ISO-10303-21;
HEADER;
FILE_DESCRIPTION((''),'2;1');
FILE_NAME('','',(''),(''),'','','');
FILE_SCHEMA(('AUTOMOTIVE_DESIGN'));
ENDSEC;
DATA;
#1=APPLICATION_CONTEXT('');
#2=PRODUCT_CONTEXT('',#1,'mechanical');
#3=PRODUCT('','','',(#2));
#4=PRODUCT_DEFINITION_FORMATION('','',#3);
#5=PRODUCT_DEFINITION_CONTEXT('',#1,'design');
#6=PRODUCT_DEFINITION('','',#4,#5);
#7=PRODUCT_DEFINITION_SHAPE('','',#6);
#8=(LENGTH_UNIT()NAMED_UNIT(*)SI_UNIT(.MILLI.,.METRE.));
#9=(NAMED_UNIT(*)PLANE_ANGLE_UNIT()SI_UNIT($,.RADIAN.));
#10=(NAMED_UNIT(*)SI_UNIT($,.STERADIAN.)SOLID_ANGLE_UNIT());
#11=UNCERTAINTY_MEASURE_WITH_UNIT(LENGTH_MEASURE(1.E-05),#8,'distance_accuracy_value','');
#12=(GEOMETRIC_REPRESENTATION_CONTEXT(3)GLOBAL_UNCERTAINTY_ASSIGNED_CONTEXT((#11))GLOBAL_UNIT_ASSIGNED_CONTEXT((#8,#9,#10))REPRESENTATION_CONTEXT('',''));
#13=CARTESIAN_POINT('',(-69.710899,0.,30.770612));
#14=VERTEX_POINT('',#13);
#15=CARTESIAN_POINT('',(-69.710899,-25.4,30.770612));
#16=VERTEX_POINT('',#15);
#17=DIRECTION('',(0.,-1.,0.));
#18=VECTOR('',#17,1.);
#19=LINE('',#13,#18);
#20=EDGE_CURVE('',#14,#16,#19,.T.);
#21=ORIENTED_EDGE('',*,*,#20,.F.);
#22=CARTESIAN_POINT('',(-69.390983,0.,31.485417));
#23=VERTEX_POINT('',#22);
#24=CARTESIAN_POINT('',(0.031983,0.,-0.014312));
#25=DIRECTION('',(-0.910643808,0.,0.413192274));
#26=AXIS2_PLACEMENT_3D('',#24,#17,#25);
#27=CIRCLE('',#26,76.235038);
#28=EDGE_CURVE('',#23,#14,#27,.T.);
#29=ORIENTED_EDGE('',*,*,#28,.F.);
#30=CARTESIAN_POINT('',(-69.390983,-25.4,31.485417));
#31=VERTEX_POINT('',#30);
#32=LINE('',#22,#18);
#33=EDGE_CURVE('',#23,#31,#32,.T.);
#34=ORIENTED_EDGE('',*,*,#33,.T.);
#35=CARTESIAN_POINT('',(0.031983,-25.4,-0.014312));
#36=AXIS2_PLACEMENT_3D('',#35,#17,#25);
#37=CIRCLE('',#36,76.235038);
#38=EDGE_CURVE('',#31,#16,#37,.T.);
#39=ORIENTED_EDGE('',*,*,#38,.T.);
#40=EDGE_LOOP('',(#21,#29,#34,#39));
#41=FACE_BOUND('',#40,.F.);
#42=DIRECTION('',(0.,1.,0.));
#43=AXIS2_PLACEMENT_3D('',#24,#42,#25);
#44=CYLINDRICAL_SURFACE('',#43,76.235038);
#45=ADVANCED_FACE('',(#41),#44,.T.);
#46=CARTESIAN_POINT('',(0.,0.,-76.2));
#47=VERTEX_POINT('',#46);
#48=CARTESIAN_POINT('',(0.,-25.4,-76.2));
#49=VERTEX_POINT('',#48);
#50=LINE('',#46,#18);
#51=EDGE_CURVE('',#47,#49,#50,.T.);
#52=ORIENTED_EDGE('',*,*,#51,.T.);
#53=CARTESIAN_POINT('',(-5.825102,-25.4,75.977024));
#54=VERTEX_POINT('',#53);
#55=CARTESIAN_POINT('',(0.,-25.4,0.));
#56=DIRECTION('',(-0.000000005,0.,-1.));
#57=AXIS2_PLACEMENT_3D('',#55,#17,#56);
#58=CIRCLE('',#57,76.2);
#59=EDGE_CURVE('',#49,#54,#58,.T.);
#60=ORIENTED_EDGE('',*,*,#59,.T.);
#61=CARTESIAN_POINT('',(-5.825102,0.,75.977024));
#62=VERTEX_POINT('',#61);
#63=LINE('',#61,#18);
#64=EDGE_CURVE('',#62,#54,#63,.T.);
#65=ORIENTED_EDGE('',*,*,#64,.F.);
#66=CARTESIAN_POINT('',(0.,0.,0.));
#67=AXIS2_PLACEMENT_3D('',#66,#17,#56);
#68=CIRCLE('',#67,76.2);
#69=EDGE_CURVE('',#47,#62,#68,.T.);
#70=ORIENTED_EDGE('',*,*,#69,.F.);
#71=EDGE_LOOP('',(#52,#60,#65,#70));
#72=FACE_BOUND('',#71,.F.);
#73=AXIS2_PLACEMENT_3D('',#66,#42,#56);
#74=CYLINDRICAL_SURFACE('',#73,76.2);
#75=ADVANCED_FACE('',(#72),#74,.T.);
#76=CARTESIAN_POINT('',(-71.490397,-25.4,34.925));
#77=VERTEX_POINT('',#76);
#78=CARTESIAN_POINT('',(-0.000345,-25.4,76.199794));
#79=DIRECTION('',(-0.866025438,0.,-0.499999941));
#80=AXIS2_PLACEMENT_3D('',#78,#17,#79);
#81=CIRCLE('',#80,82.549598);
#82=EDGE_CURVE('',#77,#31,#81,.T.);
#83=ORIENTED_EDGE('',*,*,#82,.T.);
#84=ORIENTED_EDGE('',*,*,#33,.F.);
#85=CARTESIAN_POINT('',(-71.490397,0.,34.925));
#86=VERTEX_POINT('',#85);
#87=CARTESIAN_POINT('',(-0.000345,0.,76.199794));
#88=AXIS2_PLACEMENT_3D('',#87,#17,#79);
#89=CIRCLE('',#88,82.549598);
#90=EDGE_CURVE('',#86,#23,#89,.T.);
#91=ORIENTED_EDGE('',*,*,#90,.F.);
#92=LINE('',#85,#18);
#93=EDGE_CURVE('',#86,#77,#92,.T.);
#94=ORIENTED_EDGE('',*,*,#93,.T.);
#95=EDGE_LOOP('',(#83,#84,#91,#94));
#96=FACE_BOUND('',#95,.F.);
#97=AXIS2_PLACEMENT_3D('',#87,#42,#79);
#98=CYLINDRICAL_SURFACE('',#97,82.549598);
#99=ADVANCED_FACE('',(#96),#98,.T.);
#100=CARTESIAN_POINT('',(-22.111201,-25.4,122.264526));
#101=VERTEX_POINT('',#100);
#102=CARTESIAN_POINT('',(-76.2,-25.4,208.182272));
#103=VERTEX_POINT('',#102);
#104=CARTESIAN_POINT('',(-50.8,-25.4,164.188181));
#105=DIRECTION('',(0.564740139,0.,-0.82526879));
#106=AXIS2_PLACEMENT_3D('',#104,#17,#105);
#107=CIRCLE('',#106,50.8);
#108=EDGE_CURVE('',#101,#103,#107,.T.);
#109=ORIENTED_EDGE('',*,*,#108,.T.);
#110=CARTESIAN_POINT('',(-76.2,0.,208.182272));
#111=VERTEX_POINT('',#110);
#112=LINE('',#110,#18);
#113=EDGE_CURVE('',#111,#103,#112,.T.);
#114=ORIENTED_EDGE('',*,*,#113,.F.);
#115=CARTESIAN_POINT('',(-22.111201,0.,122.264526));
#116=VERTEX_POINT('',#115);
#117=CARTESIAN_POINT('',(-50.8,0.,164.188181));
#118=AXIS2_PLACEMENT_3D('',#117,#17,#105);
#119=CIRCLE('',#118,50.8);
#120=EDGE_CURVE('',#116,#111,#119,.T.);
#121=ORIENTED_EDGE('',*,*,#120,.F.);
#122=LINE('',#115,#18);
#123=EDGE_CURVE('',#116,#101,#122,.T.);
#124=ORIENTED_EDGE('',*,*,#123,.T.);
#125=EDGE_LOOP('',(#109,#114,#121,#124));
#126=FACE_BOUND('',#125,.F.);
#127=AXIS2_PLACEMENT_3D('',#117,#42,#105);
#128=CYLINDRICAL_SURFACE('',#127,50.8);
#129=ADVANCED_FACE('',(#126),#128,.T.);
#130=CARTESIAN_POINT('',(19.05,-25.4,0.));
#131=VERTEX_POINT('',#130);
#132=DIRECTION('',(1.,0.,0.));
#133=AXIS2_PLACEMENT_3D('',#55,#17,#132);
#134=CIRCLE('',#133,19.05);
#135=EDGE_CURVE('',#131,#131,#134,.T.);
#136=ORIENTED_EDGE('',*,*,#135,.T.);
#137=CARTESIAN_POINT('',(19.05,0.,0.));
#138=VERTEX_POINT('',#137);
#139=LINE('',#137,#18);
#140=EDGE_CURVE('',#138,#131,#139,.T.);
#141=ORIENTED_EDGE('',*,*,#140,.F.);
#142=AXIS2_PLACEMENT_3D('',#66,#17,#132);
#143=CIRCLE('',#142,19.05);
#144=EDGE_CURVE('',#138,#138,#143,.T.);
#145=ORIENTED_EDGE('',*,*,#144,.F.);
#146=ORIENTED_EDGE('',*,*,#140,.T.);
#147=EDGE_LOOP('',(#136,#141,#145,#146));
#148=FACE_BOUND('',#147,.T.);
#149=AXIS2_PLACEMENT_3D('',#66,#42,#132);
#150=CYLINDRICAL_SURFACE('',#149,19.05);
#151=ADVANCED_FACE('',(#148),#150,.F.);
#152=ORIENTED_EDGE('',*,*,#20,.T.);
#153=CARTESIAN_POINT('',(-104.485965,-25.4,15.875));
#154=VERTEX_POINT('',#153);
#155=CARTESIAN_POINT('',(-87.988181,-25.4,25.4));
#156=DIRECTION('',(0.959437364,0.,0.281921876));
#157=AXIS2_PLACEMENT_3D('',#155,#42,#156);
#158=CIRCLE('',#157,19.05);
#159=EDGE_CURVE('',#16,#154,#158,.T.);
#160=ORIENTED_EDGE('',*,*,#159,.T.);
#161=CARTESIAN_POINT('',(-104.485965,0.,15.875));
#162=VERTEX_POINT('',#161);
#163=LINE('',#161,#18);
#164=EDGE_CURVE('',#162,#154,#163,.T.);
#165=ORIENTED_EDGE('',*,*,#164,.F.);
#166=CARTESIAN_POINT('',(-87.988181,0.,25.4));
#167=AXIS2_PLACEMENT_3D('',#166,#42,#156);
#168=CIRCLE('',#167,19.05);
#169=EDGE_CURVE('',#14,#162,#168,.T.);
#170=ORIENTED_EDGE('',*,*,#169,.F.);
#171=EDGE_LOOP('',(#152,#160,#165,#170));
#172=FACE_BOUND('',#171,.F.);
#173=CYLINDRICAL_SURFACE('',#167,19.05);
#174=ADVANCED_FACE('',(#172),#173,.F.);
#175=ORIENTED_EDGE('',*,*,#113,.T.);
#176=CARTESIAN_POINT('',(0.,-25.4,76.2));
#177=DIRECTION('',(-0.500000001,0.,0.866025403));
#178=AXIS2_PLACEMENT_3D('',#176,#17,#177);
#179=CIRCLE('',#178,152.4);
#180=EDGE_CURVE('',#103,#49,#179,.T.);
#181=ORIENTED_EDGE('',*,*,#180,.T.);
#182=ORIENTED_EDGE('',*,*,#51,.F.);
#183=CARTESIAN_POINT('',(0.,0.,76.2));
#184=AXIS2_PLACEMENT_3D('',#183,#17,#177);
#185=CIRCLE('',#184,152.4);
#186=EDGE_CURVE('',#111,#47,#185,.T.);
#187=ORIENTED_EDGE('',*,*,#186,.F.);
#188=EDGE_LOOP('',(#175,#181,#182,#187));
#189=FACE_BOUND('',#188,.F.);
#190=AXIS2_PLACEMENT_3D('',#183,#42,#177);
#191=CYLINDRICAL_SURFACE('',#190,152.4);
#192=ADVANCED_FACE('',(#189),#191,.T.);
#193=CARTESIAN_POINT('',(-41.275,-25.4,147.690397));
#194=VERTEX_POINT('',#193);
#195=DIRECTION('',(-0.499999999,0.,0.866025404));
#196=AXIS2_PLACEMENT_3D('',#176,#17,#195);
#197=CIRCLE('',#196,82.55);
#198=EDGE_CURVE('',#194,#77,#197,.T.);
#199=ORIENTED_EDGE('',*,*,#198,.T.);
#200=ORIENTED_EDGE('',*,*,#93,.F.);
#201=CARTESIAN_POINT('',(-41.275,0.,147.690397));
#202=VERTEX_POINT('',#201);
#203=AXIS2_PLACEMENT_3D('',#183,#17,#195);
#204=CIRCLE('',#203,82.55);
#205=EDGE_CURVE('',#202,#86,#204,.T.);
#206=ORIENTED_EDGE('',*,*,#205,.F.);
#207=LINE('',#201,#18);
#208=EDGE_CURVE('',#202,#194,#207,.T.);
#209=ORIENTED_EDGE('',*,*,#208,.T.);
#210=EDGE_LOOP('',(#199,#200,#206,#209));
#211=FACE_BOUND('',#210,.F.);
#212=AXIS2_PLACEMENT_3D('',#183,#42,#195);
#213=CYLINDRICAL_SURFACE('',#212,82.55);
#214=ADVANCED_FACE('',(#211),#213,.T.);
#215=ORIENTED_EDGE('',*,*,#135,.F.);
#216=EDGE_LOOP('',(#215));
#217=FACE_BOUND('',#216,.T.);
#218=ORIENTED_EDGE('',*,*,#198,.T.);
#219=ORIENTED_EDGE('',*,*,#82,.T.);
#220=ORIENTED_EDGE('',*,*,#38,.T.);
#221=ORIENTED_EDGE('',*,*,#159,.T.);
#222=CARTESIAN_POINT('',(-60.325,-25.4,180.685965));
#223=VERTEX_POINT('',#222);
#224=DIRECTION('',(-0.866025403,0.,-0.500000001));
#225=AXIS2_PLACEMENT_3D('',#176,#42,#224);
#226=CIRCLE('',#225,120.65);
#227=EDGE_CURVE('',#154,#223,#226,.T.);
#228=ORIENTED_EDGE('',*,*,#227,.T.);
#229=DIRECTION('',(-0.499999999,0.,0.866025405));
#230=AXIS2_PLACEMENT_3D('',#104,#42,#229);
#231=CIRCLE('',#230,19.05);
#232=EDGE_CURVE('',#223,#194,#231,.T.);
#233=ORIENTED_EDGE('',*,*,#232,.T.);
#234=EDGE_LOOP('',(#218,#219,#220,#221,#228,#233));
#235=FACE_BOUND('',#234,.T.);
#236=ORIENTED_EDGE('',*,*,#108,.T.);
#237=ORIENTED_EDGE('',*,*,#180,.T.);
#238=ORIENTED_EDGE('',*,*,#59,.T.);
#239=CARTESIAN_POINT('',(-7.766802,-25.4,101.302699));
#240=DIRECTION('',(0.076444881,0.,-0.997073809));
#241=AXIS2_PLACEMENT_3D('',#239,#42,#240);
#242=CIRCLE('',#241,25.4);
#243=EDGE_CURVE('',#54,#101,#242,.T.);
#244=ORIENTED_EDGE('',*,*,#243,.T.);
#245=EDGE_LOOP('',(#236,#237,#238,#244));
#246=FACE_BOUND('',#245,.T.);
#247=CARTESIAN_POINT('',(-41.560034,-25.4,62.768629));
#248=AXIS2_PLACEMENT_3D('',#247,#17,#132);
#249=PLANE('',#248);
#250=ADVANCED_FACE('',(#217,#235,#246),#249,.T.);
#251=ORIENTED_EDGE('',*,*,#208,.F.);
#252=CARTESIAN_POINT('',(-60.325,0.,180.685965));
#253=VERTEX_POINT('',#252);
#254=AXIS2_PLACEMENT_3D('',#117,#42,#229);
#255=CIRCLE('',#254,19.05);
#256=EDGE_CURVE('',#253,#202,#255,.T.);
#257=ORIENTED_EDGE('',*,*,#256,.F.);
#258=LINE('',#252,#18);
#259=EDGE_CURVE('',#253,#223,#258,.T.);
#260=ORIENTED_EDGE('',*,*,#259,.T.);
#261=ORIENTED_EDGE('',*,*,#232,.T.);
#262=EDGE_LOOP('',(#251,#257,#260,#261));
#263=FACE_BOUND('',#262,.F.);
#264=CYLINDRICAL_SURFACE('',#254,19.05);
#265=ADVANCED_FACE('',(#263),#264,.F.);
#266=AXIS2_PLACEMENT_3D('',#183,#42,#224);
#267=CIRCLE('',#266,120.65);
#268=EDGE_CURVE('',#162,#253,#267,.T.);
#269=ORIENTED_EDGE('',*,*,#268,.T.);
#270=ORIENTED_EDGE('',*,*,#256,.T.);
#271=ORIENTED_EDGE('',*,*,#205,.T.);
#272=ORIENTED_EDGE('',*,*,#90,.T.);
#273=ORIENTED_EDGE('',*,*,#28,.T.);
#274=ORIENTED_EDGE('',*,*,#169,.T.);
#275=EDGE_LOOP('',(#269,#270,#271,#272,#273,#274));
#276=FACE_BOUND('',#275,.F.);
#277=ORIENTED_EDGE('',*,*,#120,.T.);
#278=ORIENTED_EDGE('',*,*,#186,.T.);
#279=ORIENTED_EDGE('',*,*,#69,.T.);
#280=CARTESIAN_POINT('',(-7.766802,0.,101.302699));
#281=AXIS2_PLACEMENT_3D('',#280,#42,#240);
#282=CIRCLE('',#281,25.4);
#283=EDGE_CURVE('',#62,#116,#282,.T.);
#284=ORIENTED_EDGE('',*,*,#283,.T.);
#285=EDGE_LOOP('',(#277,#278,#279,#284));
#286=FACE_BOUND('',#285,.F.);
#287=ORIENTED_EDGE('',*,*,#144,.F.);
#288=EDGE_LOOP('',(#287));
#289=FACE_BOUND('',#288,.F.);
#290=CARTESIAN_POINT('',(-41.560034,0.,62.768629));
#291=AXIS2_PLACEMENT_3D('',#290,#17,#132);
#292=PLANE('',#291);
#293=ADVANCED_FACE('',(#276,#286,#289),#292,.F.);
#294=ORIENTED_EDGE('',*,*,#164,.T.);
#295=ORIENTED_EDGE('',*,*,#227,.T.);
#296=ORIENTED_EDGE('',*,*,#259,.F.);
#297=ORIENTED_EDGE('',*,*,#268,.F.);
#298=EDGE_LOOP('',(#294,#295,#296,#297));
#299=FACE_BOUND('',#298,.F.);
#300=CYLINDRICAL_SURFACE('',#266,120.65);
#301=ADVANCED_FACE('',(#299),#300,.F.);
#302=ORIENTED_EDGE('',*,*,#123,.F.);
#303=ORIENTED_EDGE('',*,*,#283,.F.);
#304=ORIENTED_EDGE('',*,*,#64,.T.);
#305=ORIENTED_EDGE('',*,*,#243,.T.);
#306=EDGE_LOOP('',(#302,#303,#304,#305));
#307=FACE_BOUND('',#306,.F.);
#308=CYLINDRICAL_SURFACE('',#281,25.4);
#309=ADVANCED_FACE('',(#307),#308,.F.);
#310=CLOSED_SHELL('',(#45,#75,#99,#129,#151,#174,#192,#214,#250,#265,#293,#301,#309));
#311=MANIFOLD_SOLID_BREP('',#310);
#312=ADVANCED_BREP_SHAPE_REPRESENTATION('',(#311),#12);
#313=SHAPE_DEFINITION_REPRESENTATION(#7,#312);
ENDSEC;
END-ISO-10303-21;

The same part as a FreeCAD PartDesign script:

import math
import FreeCAD as App
import Part
import Sketcher

V = App.Vector
Q = App.Units.Quantity

doc = App.newDocument("Part")
body = doc.addObject("PartDesign::Body", "Body")

sketch1 = body.newObject("Sketcher::SketchObject", "Sketch")
sketch1.AttachmentSupport = (doc.getObject("XZ_Plane"), [""])
sketch1.MapMode = "FlatFace"
sketch1.addGeometry(Part.ArcOfCircle(Part.Circle(V(0, 76.2, 0), V(0, 0, 1), 152.4), math.radians(120), math.radians(270)), False)
sketch1.addGeometry(Part.ArcOfCircle(Part.Circle(V(0, 0, 0), V(0, 0, 1), 76.2), math.radians(-90), math.radians(94.384248)), False)
sketch1.addGeometry(Part.ArcOfCircle(Part.Circle(V(-7.766802, 101.302699, 0), V(0, 0, 1), 25.4), math.radians(124.384247), math.radians(274.384246)), False)
sketch1.addGeometry(Part.ArcOfCircle(Part.Circle(V(-50.8, 164.188181, 0), V(0, 0, 1), 50.8), math.radians(-55.615752), math.radians(119.999999)), False)
sketch1.addGeometry(Part.Circle(V(0, 0, 0), V(0, 0, 1), 19.05), False)
sketch1.addGeometry(Part.ArcOfCircle(Part.Circle(V(-87.988181, 25.4, 0), V(0, 0, 1), 19.05), math.radians(-150), math.radians(16.374942)), False)
sketch1.addGeometry(Part.ArcOfCircle(Part.Circle(V(0, 76.2, 0), V(0, 0, 1), 120.65), math.radians(120), math.radians(210)), False)
sketch1.addGeometry(Part.ArcOfCircle(Part.Circle(V(-50.8, 164.188181, 0), V(0, 0, 1), 19.05), math.radians(-60), math.radians(120)), False)
sketch1.addGeometry(Part.ArcOfCircle(Part.Circle(V(0, 76.2, 0), V(0, 0, 1), 82.55), math.radians(120), math.radians(210)), False)
sketch1.addGeometry(Part.ArcOfCircle(Part.Circle(V(-0.000345, 76.199794, 0), V(0, 0, 1), 82.549598), math.radians(-150.000004), math.radians(-147.202822)), False)
sketch1.addGeometry(Part.ArcOfCircle(Part.Circle(V(0.031983, -0.014312, 0), V(0, 0, 1), 76.235038), math.radians(155.594473), math.radians(156.183051)), False)
sketch1.addConstraint(Sketcher.Constraint("Tangent", 0, 2, 1, 1))
sketch1.addConstraint(Sketcher.Constraint("Tangent", 1, 2, 2, 2))
sketch1.addConstraint(Sketcher.Constraint("Tangent", 2, 1, 3, 1))
sketch1.addConstraint(Sketcher.Constraint("Tangent", 3, 2, 0, 1))
sketch1.addConstraint(Sketcher.Constraint("Tangent", 5, 1, 6, 2))
sketch1.addConstraint(Sketcher.Constraint("Tangent", 6, 1, 7, 2))
sketch1.addConstraint(Sketcher.Constraint("Tangent", 7, 1, 8, 1))
sketch1.addConstraint(Sketcher.Constraint("Tangent", 8, 2, 9, 1))
sketch1.addConstraint(Sketcher.Constraint("Coincident", 9, 2, 10, 1))
sketch1.addConstraint(Sketcher.Constraint("Coincident", 10, 2, 5, 2))
sketch1.addConstraint(Sketcher.Constraint("Coincident", 1, 3, -1, 1))
sketch1.addConstraint(Sketcher.Constraint("Coincident", 4, 3, -1, 1))
sketch1.addConstraint(Sketcher.Constraint("Coincident", 6, 3, 0, 3))
sketch1.addConstraint(Sketcher.Constraint("Coincident", 7, 3, 3, 3))
sketch1.addConstraint(Sketcher.Constraint("Coincident", 8, 3, 0, 3))
sketch1.addConstraint(Sketcher.Constraint("Equal", 4, 5))
sketch1.addConstraint(Sketcher.Constraint("Equal", 5, 7))
sketch1.addConstraint(Sketcher.Constraint("PointOnObject", 0, 3, -2))
sketch1.addConstraint(Sketcher.Constraint("Radius", 0, Q("6 in")))
sketch1.addConstraint(Sketcher.Constraint("Radius", 1, Q("3 in")))
sketch1.addConstraint(Sketcher.Constraint("Radius", 2, Q("1 in")))
sketch1.addConstraint(Sketcher.Constraint("Radius", 3, Q("2 in")))
sketch1.addConstraint(Sketcher.Constraint("Diameter", 4, Q("1.5 in")))
sketch1.addConstraint(Sketcher.Constraint("DistanceX", 3, 3, -1, 1, Q("2 in")))
sketch1.addConstraint(Sketcher.Constraint("DistanceY", -1, 1, 5, 3, Q("1 in")))
sketch1.addConstraint(Sketcher.Constraint("DistanceY", 5, 1, 8, 2, Q("0.75 in")))
sketch1.addConstraint(Sketcher.Constraint("Radius", 10, 76.235038))
sketch1.addConstraint(Sketcher.Constraint("Radius", 9, 82.549598))
sketch1.addConstraint(Sketcher.Constraint("DistanceX", 10, 2, -1, 1, 69.710899))
sketch1.addConstraint(Sketcher.Constraint("DistanceY", 10, 3, -1, 1, 0.014312))
pad1 = body.newObject("PartDesign::Pad", "Pad")
pad1.Profile = sketch1
pad1.Length = Q("1 in")

doc.recompute()
